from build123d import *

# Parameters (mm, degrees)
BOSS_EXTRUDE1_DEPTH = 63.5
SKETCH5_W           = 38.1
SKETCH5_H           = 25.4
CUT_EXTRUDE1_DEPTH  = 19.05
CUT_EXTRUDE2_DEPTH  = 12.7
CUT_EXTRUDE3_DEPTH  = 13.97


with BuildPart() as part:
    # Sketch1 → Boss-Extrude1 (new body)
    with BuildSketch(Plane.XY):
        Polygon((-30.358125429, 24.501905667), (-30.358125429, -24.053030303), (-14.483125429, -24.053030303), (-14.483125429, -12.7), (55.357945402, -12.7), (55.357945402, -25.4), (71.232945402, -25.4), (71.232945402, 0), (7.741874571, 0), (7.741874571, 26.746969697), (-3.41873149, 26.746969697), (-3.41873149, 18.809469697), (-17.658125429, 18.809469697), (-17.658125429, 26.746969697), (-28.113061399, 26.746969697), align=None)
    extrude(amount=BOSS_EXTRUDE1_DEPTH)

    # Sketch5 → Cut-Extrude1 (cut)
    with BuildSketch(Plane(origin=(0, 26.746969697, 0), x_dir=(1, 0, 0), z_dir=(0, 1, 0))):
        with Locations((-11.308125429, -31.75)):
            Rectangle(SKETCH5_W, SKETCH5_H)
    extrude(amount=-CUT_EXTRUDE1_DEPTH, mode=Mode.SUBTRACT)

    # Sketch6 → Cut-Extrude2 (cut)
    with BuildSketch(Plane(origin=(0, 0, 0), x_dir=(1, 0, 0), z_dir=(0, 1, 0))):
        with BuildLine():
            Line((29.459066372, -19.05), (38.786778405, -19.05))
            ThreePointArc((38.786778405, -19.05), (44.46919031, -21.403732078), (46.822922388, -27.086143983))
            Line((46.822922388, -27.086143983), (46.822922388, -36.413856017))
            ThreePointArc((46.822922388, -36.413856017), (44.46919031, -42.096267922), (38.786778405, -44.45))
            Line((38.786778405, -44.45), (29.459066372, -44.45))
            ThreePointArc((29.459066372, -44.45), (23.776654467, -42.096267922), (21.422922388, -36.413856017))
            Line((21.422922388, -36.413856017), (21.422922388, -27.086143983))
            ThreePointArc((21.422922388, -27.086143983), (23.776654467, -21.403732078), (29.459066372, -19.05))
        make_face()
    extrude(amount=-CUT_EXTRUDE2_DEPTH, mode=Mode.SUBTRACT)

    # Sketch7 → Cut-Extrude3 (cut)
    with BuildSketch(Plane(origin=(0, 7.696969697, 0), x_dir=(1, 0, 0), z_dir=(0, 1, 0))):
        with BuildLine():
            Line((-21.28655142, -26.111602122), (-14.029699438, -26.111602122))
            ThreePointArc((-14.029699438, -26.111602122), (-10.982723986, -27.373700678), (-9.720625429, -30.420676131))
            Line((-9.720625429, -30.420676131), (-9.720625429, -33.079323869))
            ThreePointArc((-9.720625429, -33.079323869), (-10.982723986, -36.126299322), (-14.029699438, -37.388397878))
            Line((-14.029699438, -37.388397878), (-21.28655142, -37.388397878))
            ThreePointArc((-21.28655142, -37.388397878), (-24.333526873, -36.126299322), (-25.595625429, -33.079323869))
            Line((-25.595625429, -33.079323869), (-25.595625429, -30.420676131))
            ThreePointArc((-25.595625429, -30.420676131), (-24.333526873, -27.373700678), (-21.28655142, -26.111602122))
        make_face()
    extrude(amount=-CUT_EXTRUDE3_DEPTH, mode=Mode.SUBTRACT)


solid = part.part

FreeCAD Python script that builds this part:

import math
import FreeCAD as App
import Part
import Sketcher
from FreeCAD import Vector
Q = App.Units.Quantity

doc = App.newDocument("Part")
body = doc.addObject("PartDesign::Body", "Body")

# Sketch on XY plane
sketch1 = body.newObject("Sketcher::SketchObject", "Sketch")
sketch1.AttachmentSupport = (doc.getObject("XY_Plane"), [""])
sketch1.MapMode = "FlatFace"
sketch1.addGeometry([
    Part.LineSegment(Vector(-30.4, 24.5, 0), Vector(-30.4, -24.1, 0)),  # 0
    Part.LineSegment(Vector(-30.4, -24.1, 0), Vector(-14.5, -24.1, 0)),  # 1
    Part.LineSegment(Vector(-14.5, -24.1, 0), Vector(-14.5, -12.7, 0)),  # 2
    Part.LineSegment(Vector(-14.5, -12.7, 0), Vector(55.4, -12.7, 0)),  # 3
    Part.LineSegment(Vector(55.4, -12.7, 0), Vector(55.4, -25.4, 0)),  # 4
    Part.LineSegment(Vector(55.4, -25.4, 0), Vector(71.2, -25.4, 0)),  # 5
    Part.LineSegment(Vector(71.2, -25.4, 0), Vector(71.2, 0, 0)),  # 6
    Part.LineSegment(Vector(71.2, 0, 0), Vector(7.7, 0, 0)),  # 7
    Part.LineSegment(Vector(7.7, 0, 0), Vector(7.7, 26.7, 0)),  # 8
    Part.LineSegment(Vector(7.7, 26.7, 0), Vector(-3.4, 26.7, 0)),  # 9
    Part.LineSegment(Vector(-3.4, 26.7, 0), Vector(-3.4, 18.8, 0)),  # 10
    Part.LineSegment(Vector(-3.4, 18.8, 0), Vector(-17.7, 18.8, 0)),  # 11
    Part.LineSegment(Vector(-17.7, 18.8, 0), Vector(-17.7, 26.7, 0)),  # 12
    Part.LineSegment(Vector(-17.7, 26.7, 0), Vector(-28.1, 26.7, 0)),  # 13
    Part.LineSegment(Vector(-28.1, 26.7, 0), Vector(-30.4, 24.5, 0)),  # 14
], False)
sketch1.addConstraint([
    Sketcher.Constraint("Coincident", 0, 2, 1, 1),
    Sketcher.Constraint("Coincident", 1, 2, 2, 1),
    Sketcher.Constraint("Coincident", 2, 2, 3, 1),
    Sketcher.Constraint("Coincident", 3, 2, 4, 1),
    Sketcher.Constraint("Coincident", 4, 2, 5, 1),
    Sketcher.Constraint("Coincident", 5, 2, 6, 1),
    Sketcher.Constraint("Coincident", 6, 2, 7, 1),
    Sketcher.Constraint("Coincident", 7, 2, 8, 1),
    Sketcher.Constraint("Coincident", 8, 2, 9, 1),
    Sketcher.Constraint("Coincident", 9, 2, 10, 1),
    Sketcher.Constraint("Coincident", 10, 2, 11, 1),
    Sketcher.Constraint("Coincident", 11, 2, 12, 1),
    Sketcher.Constraint("Coincident", 12, 2, 13, 1),
    Sketcher.Constraint("Coincident", 13, 2, 14, 1),
    Sketcher.Constraint("Coincident", 14, 2, 0, 1),
    Sketcher.Constraint("Vertical", 0),
    Sketcher.Constraint("Horizontal", 1),
    Sketcher.Constraint("Vertical", 2),
    Sketcher.Constraint("Horizontal", 3),
    Sketcher.Constraint("Vertical", 4),
    Sketcher.Constraint("Horizontal", 5),
    Sketcher.Constraint("Vertical", 6),
    Sketcher.Constraint("Horizontal", 7),
    Sketcher.Constraint("Vertical", 8),
    Sketcher.Constraint("Horizontal", 9),
    Sketcher.Constraint("Vertical", 10),
    Sketcher.Constraint("Horizontal", 11),
    Sketcher.Constraint("Vertical", 12),
    Sketcher.Constraint("Horizontal", 13),
    Sketcher.Constraint("PointOnObject", 6, 2, -1),
    Sketcher.Constraint("Horizontal", 9, 2, 12, 2),
    Sketcher.Constraint("Equal", 1, 5),
    Sketcher.Constraint("DistanceY", 6, 1, 6, 2, Q("1 in")),
    Sketcher.Constraint("DistanceY", 4, 2, 4, 1, Q("0.5 in")),
    Sketcher.Constraint("Angle", 14, Q("-135 deg")),
    Sketcher.Constraint("DistanceY", 1, 2, 8, 2, Q("2 in")),
    Sketcher.Constraint("DistanceX", 11, 2, 8, 2, Q("1 in")),
    Sketcher.Constraint("DistanceX", 0, 2, 7, 2, Q("1.5 in")),
    Sketcher.Constraint("DistanceX", 1, 1, 1, 2, Q("0.625 in")),
    Sketcher.Constraint("DistanceY", 10, 2, 10, 1, Q("0.3125 in")),
    Sketcher.Constraint("Distance", 14, Q("0.125 in")),
    Sketcher.Constraint("DistanceX", 3, 1, 3, 2, Q("69.841071 mm")),
    Sketcher.Constraint("DistanceY", 2, 1, 2, 2, Q("11.35303 mm")),
    Sketcher.Constraint("DistanceX", 9, 2, 9, 1, Q("11.160606 mm")),
    Sketcher.Constraint("DistanceX", 9, 2, -1, 1, Q("3.418731 mm")),
])
pad1 = body.newObject("PartDesign::Pad", "Pad")
pad1.Profile = sketch1
pad1.Length = Q("2.5 in")

# Sketch on XZ plane
sketch2 = body.newObject("Sketcher::SketchObject", "Sketch001")
sketch2.AttachmentSupport = (doc.getObject("XZ_Plane"), [""])
sketch2.MapMode = "FlatFace"
sketch2.AttachmentOffset = App.Placement(Vector(0, 0, -26.74697), App.Rotation())
sketch2.addGeometry([
    Part.LineSegment(Vector(-30, 19, 0), Vector(-30, 44, 0)),
    Part.LineSegment(Vector(-30, 44, 0), Vector(8, 44, 0)),
    Part.LineSegment(Vector(8, 44, 0), Vector(8, 19, 0)),
    Part.LineSegment(Vector(8, 19, 0), Vector(-30, 19, 0)),
], False)
sketch2.addConstraint([
    Sketcher.Constraint("Coincident", 0, 2, 1, 1),
    Sketcher.Constraint("Coincident", 1, 2, 2, 1),
    Sketcher.Constraint("Coincident", 2, 2, 3, 1),
    Sketcher.Constraint("Coincident", 3, 2, 0, 1),
    Sketcher.Constraint("Vertical", 0),
    Sketcher.Constraint("Horizontal", 1),
    Sketcher.Constraint("Vertical", 2),
    Sketcher.Constraint("Horizontal", 3),
    Sketcher.Constraint("DistanceY", 0, 1, 0, 2, Q("1 in")),
    Sketcher.Constraint("DistanceX", 1, 1, 1, 2, Q("1.5 in")),
    Sketcher.Constraint("DistanceY", -1, 1, 0, 2, Q("1.75 in")),
    Sketcher.Constraint("DistanceX", 0, 2, -1, 1, Q("30.358125 mm")),
])
pocket1 = body.newObject("PartDesign::Pocket", "Pocket")
pocket1.Profile = sketch2
pocket1.Length = Q("0.75 in")
pocket1.Reversed = True

# Sketch on XZ plane
sketch3 = body.newObject("Sketcher::SketchObject", "Sketch002")
sketch3.AttachmentSupport = (doc.getObject("XZ_Plane"), [""])
sketch3.MapMode = "FlatFace"
sketch3.addGeometry([
    Part.LineSegment(Vector(39, 19, 0), Vector(29, 19, 0)),  # 0
    Part.ArcOfCircle(Part.Circle(Vector(29, 27, 0), Vector(0, 0, 1), 8), math.radians(-180), math.radians(-90)),  # 1
    Part.LineSegment(Vector(21, 27, 0), Vector(21, 36, 0)),  # 2
    Part.ArcOfCircle(Part.Circle(Vector(29, 36, 0), Vector(0, 0, 1), 8), math.radians(90), math.radians(180)),  # 3
    Part.LineSegment(Vector(29, 44, 0), Vector(39, 44, 0)),  # 4
    Part.ArcOfCircle(Part.Circle(Vector(39, 36, 0), Vector(0, 0, 1), 8), math.radians(0), math.radians(90)),  # 5
    Part.LineSegment(Vector(47, 36, 0), Vector(47, 27, 0)),  # 6
    Part.ArcOfCircle(Part.Circle(Vector(39, 27, 0), Vector(0, 0, 1), 8), math.radians(-90), math.radians(0)),  # 7
], False)
sketch3.addConstraint([
    Sketcher.Constraint("Tangent", 0, 2, 1, 2),
    Sketcher.Constraint("Tangent", 1, 1, 2, 1),
    Sketcher.Constraint("Tangent", 2, 2, 3, 2),
    Sketcher.Constraint("Tangent", 3, 1, 4, 1),
    Sketcher.Constraint("Tangent", 4, 2, 5, 2),
    Sketcher.Constraint("Tangent", 5, 1, 6, 1),
    Sketcher.Constraint("Tangent", 6, 2, 7, 2),
    Sketcher.Constraint("Tangent", 7, 1, 0, 1),
    Sketcher.Constraint("Horizontal", 0),
    Sketcher.Constraint("Vertical", 2),
    Sketcher.Constraint("Horizontal", 4),
    Sketcher.Constraint("Vertical", 6),
    Sketcher.Constraint("Equal", 1, 3),
    Sketcher.Constraint("Equal", 3, 5),
    Sketcher.Constraint("Equal", 5, 7),
    Sketcher.Constraint("Equal", 4, 2),
    Sketcher.Constraint("DistanceY", -1, 1, 0, 2, Q("0.75 in")),
    Sketcher.Constraint("DistanceY", -1, 1, 3, 1, Q("1.75 in")),
    Sketcher.Constraint("Radius", 1, Q("8.036144 mm")),
    Sketcher.Constraint("DistanceX", -1, 1, 5, 3, Q("38.786778 mm")),
])
pocket2 = body.newObject("PartDesign::Pocket", "Pocket001")
pocket2.Profile = sketch3
pocket2.Length = Q("0.5 in")
pocket2.Reversed = True

# Sketch on XZ plane
sketch4 = body.newObject("Sketcher::SketchObject", "Sketch003")
sketch4.AttachmentSupport = (doc.getObject("XZ_Plane"), [""])
sketch4.MapMode = "FlatFace"
sketch4.AttachmentOffset = App.Placement(Vector(0, 0, -7.69697), App.Rotation())
sketch4.addGeometry([
    Part.LineSegment(Vector(-14, 26.1, 0), Vector(-21.3, 26.1, 0)),  # 0
    Part.ArcOfCircle(Part.Circle(Vector(-21.3, 30.4, 0), Vector(0, 0, 1), 4.3), math.radians(180), math.radians(270)),  # 1
    Part.LineSegment(Vector(-25.6, 30.4, 0), Vector(-25.6, 33.1, 0)),  # 2
    Part.ArcOfCircle(Part.Circle(Vector(-21.3, 33.1, 0), Vector(0, 0, 1), 4.3), math.radians(90), math.radians(180)),  # 3
    Part.LineSegment(Vector(-21.3, 37.4, 0), Vector(-14, 37.4, 0)),  # 4
    Part.ArcOfCircle(Part.Circle(Vector(-14, 33.1, 0), Vector(0, 0, 1), 4.3), math.radians(0), math.radians(90)),  # 5
    Part.LineSegment(Vector(-9.7, 33.1, 0), Vector(-9.7, 30.4, 0)),  # 6
    Part.ArcOfCircle(Part.Circle(Vector(-14, 30.4, 0), Vector(0, 0, 1), 4.3), math.radians(-90), math.radians(0)),  # 7
], False)
sketch4.addConstraint([
    Sketcher.Constraint("Tangent", 0, 2, 1, 2),
    Sketcher.Constraint("Tangent", 1, 1, 2, 1),
    Sketcher.Constraint("Tangent", 2, 2, 3, 2),
    Sketcher.Constraint("Tangent", 3, 1, 4, 1),
    Sketcher.Constraint("Tangent", 4, 2, 5, 2),
    Sketcher.Constraint("Tangent", 5, 1, 6, 1),
    Sketcher.Constraint("Tangent", 6, 2, 7, 2),
    Sketcher.Constraint("Tangent", 7, 1, 0, 1),
    Sketcher.Constraint("Horizontal", 0),
    Sketcher.Constraint("Vertical", 2),
    Sketcher.Constraint("Horizontal", 4),
    Sketcher.Constraint("Vertical", 6),
    Sketcher.Constraint("Equal", 1, 3),
    Sketcher.Constraint("Equal", 3, 5),
    Sketcher.Constraint("Equal", 5, 7),
    Sketcher.Constraint("Radius", 1, Q("4.309074 mm")),
    Sketcher.Constraint("DistanceX", 0, 2, 0, 1, Q("7.256852 mm")),
    Sketcher.Constraint("DistanceX", 5, 3, -1, 1, Q("14.029699 mm")),
    Sketcher.Constraint("DistanceY", 2, 1, 2, 2, Q("2.658648 mm")),
    Sketcher.Constraint("DistanceY", -1, 1, 1, 3, Q("30.420676 mm")),
])
pocket3 = body.newObject("PartDesign::Pocket", "Pocket002")
pocket3.Profile = sketch4
pocket3.Length = Q("0.55 in")
pocket3.Reversed = True

doc.recompute()
